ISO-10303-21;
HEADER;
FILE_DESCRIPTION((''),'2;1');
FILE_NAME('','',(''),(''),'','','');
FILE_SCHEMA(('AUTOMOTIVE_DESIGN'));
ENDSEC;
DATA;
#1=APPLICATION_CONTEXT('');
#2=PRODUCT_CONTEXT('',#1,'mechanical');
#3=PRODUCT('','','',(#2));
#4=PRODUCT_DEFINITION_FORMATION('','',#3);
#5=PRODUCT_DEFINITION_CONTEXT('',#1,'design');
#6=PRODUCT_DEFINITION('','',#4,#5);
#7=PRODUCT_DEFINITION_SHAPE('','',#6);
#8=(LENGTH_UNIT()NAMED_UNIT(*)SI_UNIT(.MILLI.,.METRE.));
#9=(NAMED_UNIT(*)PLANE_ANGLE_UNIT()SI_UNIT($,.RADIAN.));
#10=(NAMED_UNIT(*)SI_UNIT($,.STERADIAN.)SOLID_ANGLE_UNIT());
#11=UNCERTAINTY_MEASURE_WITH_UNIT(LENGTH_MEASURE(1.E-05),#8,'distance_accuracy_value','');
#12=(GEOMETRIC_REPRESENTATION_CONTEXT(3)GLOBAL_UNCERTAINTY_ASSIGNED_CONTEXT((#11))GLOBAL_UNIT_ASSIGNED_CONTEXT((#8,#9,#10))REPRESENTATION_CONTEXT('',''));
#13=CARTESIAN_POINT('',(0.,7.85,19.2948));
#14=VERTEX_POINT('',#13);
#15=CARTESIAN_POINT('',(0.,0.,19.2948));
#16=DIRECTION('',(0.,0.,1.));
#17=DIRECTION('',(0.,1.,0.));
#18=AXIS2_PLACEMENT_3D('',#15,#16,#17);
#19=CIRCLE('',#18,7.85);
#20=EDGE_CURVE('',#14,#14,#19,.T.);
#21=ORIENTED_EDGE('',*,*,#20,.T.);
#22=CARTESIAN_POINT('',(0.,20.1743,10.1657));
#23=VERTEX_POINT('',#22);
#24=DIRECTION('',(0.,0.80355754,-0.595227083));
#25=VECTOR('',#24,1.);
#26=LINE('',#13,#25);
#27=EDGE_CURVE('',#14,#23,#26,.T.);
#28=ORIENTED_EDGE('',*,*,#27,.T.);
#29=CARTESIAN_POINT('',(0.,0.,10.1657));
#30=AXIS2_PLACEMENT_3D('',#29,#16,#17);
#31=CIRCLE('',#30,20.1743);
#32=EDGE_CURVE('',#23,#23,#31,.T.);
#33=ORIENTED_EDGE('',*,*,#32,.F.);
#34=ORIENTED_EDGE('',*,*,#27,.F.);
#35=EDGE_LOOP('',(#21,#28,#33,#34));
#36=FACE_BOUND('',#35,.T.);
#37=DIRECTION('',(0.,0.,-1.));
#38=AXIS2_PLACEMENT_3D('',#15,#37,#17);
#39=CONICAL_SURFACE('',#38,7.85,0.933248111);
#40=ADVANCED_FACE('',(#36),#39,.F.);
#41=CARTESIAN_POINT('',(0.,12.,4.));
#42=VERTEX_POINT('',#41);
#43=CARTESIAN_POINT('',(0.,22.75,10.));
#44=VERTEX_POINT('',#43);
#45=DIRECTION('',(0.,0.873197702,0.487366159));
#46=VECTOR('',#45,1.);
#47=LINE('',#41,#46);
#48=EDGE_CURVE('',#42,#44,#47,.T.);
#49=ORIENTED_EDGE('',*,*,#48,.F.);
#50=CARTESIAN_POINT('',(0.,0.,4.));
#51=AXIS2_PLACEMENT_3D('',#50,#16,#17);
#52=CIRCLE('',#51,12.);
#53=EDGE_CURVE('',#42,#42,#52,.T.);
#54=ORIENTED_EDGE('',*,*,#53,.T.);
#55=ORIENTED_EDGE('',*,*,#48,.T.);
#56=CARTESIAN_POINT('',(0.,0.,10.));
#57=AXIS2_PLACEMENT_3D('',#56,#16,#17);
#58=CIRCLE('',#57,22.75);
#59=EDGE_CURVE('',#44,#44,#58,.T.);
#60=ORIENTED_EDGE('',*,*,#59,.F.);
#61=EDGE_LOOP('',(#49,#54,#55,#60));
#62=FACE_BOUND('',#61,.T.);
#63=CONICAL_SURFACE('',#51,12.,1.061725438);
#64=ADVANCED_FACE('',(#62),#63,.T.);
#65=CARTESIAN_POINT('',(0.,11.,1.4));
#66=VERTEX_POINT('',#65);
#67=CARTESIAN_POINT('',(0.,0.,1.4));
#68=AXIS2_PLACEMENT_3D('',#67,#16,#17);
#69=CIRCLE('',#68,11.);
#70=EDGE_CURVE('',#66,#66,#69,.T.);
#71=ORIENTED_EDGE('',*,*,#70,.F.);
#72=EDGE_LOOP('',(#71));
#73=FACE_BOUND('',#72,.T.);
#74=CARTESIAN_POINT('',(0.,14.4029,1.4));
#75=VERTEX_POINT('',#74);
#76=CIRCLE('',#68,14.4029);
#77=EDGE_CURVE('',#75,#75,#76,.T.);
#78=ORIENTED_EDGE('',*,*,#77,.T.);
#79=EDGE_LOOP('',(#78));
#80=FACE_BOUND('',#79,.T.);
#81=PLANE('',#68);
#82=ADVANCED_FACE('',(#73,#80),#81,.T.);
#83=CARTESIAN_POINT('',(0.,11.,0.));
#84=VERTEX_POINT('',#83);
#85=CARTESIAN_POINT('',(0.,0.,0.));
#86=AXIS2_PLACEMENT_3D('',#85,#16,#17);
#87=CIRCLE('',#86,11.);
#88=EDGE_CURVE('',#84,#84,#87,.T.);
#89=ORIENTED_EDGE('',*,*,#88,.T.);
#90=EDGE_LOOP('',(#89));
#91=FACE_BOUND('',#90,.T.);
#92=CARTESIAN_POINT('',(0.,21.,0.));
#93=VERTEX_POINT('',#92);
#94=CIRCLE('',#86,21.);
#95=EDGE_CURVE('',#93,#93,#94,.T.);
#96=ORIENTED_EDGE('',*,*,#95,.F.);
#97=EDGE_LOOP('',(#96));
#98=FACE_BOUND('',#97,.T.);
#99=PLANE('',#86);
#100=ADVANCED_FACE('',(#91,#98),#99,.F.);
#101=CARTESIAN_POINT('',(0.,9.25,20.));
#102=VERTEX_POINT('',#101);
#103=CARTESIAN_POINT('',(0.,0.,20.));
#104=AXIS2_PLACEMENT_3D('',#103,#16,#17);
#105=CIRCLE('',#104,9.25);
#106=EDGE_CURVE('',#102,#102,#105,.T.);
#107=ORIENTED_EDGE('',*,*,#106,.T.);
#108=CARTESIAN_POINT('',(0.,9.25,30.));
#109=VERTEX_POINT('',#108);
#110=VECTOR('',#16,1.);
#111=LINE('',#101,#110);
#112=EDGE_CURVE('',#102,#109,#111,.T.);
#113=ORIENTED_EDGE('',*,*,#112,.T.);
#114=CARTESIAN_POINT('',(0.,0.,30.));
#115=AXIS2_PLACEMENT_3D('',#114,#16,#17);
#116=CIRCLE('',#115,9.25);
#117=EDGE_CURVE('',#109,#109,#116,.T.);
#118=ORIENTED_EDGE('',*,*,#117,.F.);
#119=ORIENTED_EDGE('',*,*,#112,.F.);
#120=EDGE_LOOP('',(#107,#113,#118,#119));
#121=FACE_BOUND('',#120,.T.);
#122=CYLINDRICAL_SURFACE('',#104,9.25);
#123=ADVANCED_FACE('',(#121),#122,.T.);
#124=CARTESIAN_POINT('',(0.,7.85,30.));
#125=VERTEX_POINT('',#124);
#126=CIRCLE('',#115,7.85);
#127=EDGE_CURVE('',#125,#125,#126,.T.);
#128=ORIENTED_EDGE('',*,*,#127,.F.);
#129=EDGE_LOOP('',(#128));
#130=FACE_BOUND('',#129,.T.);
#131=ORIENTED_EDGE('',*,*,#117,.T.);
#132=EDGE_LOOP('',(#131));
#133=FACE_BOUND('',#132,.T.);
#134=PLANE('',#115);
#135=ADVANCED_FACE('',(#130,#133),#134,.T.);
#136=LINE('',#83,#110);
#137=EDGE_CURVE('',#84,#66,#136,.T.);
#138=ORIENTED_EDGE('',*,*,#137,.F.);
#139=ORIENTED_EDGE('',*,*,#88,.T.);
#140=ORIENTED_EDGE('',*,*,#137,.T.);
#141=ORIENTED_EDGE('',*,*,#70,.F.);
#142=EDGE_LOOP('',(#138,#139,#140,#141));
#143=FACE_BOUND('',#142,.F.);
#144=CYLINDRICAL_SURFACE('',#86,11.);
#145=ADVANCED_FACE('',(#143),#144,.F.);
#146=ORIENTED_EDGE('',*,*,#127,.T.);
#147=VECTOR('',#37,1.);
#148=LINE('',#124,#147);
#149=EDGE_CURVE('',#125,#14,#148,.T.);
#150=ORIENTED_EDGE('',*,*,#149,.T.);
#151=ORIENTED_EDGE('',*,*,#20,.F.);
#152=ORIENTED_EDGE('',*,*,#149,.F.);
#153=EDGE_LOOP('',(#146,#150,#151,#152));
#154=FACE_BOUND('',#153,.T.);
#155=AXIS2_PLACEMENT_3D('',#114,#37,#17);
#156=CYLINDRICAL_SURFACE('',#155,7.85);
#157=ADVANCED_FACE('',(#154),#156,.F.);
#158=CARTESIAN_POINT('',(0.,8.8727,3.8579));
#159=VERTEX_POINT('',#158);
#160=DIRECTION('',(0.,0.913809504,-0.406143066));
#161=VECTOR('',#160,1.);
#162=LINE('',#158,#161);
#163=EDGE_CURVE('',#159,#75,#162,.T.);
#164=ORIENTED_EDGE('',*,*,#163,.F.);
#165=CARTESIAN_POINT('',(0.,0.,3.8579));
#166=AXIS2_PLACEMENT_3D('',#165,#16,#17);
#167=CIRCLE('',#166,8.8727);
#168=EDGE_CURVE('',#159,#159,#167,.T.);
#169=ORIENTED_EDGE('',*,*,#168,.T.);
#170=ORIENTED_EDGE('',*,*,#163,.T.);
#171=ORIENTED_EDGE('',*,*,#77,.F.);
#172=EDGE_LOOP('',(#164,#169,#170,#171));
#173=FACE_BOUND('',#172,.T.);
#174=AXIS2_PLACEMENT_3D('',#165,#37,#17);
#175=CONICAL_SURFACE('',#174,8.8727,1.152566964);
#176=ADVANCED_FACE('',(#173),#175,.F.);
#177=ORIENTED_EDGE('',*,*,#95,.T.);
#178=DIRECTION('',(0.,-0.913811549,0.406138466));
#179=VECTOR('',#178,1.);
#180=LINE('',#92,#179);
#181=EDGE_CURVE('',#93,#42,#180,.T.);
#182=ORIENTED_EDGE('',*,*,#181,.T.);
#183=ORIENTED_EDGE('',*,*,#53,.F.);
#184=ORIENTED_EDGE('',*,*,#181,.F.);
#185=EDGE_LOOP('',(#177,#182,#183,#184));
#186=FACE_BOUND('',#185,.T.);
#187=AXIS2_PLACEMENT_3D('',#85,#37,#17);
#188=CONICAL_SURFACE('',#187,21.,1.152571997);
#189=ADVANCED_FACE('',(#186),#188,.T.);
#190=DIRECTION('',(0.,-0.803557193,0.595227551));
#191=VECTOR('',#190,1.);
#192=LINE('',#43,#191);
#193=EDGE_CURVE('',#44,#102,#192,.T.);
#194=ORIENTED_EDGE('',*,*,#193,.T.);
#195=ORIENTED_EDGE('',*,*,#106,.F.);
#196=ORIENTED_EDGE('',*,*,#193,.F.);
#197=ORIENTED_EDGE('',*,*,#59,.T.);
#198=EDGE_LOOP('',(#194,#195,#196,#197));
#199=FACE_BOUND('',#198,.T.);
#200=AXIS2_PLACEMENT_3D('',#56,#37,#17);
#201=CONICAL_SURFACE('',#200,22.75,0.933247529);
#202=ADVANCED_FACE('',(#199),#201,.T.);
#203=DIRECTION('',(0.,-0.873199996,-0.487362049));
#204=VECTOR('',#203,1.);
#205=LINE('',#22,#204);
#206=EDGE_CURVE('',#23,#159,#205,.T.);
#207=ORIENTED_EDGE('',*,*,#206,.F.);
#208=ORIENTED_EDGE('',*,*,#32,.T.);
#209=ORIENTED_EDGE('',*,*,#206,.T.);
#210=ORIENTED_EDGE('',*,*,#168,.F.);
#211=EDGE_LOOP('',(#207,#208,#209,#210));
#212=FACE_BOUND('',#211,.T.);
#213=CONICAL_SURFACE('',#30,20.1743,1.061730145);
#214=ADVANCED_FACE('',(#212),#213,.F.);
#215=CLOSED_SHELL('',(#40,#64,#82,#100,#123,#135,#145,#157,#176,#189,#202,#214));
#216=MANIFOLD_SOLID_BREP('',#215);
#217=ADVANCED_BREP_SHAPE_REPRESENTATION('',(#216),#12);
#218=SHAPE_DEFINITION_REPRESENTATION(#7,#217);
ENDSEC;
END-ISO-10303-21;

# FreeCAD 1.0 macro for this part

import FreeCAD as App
import Part
import Sketcher
from FreeCAD import Vector
Q = App.Units.Quantity


def add_polygon(sketch, points):
    """Adds a closed chain of lines whose ends are joined by coincident constraints."""
    first, n = sketch.GeometryCount, len(points)
    for a, b in zip(points, points[1:] + points[:1]):
        sketch.addGeometry(Part.LineSegment(App.Vector(*a, 0), App.Vector(*b, 0)), False)
    for i in range(n):
        sketch.addConstraint(Sketcher.Constraint("Coincident", first + i, 2, first + (i + 1) % n, 1))

doc = App.newDocument("Part")
body = doc.addObject("PartDesign::Body", "Body")

# Sketch on YZ plane
sketch1 = body.newObject("Sketcher::SketchObject", "Sketch")
sketch1.AttachmentSupport = (doc.getObject("YZ_Plane"), [""])
sketch1.MapMode = "FlatFace"
add_polygon(sketch1, [(11, 1.4), (11, 0), (21, 0), (12, 4), (22.8, 10), (9.2, 20), (9.2, 30), (7.8, 30), (7.8, 19.3), (20.2, 10.2), (8.9, 3.9), (14.4, 1.4)])  # lines 0-11
sketch1.addConstraint([
    Sketcher.Constraint("Vertical", 0),
    Sketcher.Constraint("Horizontal", 1),
    Sketcher.Constraint("Vertical", 5),
    Sketcher.Constraint("Horizontal", 6),
    Sketcher.Constraint("Vertical", 7),
    Sketcher.Constraint("Horizontal", 11),
    Sketcher.Constraint("PointOnObject", 0, 2, -1),
    Sketcher.Constraint("Parallel", 4, 8),
    Sketcher.Constraint("Parallel", 3, 9),
    Sketcher.Constraint("Parallel", 2, 10),
    Sketcher.Constraint("Equal", 6, 0),
    Sketcher.Constraint("Equal", 1, 5),
    Sketcher.Constraint("DistanceX", 1, 1, 1, 2, 10.0),
    Sketcher.Constraint("DistanceX", 6, 2, 6, 1, 1.4),
    Sketcher.Constraint("DistanceY", -1, 1, 2, 2, 4.0),
    Sketcher.Constraint("DistanceY", -1, 1, 3, 2, 10.0),
    Sketcher.Constraint("DistanceY", 3, 2, 4, 2, 10.0),
    Sketcher.Constraint("DistanceX", -1, 1, 0, 2, 11.0),
    Sketcher.Constraint("DistanceX", -1, 1, 2, 2, 12.0),
    Sketcher.Constraint("Angle", 4, Q("143.4711 deg")),
    Sketcher.Constraint("DistanceX", 11, 2, 11, 1, 3.403),
    Sketcher.Constraint("DistanceX", -1, 1, 3, 2, 22.75),
    Sketcher.Constraint("DistanceY", 7, 2, 7, 1, 10.7052),
    Sketcher.Constraint("DistanceY", -1, 1, 9, 2, 3.858),
])
revolution = body.newObject("PartDesign::Revolution", "Revolution")
revolution.Profile = sketch1
revolution.ReferenceAxis = (sketch1, ["V_Axis"])
revolution.Angle = 360

doc.recompute()
